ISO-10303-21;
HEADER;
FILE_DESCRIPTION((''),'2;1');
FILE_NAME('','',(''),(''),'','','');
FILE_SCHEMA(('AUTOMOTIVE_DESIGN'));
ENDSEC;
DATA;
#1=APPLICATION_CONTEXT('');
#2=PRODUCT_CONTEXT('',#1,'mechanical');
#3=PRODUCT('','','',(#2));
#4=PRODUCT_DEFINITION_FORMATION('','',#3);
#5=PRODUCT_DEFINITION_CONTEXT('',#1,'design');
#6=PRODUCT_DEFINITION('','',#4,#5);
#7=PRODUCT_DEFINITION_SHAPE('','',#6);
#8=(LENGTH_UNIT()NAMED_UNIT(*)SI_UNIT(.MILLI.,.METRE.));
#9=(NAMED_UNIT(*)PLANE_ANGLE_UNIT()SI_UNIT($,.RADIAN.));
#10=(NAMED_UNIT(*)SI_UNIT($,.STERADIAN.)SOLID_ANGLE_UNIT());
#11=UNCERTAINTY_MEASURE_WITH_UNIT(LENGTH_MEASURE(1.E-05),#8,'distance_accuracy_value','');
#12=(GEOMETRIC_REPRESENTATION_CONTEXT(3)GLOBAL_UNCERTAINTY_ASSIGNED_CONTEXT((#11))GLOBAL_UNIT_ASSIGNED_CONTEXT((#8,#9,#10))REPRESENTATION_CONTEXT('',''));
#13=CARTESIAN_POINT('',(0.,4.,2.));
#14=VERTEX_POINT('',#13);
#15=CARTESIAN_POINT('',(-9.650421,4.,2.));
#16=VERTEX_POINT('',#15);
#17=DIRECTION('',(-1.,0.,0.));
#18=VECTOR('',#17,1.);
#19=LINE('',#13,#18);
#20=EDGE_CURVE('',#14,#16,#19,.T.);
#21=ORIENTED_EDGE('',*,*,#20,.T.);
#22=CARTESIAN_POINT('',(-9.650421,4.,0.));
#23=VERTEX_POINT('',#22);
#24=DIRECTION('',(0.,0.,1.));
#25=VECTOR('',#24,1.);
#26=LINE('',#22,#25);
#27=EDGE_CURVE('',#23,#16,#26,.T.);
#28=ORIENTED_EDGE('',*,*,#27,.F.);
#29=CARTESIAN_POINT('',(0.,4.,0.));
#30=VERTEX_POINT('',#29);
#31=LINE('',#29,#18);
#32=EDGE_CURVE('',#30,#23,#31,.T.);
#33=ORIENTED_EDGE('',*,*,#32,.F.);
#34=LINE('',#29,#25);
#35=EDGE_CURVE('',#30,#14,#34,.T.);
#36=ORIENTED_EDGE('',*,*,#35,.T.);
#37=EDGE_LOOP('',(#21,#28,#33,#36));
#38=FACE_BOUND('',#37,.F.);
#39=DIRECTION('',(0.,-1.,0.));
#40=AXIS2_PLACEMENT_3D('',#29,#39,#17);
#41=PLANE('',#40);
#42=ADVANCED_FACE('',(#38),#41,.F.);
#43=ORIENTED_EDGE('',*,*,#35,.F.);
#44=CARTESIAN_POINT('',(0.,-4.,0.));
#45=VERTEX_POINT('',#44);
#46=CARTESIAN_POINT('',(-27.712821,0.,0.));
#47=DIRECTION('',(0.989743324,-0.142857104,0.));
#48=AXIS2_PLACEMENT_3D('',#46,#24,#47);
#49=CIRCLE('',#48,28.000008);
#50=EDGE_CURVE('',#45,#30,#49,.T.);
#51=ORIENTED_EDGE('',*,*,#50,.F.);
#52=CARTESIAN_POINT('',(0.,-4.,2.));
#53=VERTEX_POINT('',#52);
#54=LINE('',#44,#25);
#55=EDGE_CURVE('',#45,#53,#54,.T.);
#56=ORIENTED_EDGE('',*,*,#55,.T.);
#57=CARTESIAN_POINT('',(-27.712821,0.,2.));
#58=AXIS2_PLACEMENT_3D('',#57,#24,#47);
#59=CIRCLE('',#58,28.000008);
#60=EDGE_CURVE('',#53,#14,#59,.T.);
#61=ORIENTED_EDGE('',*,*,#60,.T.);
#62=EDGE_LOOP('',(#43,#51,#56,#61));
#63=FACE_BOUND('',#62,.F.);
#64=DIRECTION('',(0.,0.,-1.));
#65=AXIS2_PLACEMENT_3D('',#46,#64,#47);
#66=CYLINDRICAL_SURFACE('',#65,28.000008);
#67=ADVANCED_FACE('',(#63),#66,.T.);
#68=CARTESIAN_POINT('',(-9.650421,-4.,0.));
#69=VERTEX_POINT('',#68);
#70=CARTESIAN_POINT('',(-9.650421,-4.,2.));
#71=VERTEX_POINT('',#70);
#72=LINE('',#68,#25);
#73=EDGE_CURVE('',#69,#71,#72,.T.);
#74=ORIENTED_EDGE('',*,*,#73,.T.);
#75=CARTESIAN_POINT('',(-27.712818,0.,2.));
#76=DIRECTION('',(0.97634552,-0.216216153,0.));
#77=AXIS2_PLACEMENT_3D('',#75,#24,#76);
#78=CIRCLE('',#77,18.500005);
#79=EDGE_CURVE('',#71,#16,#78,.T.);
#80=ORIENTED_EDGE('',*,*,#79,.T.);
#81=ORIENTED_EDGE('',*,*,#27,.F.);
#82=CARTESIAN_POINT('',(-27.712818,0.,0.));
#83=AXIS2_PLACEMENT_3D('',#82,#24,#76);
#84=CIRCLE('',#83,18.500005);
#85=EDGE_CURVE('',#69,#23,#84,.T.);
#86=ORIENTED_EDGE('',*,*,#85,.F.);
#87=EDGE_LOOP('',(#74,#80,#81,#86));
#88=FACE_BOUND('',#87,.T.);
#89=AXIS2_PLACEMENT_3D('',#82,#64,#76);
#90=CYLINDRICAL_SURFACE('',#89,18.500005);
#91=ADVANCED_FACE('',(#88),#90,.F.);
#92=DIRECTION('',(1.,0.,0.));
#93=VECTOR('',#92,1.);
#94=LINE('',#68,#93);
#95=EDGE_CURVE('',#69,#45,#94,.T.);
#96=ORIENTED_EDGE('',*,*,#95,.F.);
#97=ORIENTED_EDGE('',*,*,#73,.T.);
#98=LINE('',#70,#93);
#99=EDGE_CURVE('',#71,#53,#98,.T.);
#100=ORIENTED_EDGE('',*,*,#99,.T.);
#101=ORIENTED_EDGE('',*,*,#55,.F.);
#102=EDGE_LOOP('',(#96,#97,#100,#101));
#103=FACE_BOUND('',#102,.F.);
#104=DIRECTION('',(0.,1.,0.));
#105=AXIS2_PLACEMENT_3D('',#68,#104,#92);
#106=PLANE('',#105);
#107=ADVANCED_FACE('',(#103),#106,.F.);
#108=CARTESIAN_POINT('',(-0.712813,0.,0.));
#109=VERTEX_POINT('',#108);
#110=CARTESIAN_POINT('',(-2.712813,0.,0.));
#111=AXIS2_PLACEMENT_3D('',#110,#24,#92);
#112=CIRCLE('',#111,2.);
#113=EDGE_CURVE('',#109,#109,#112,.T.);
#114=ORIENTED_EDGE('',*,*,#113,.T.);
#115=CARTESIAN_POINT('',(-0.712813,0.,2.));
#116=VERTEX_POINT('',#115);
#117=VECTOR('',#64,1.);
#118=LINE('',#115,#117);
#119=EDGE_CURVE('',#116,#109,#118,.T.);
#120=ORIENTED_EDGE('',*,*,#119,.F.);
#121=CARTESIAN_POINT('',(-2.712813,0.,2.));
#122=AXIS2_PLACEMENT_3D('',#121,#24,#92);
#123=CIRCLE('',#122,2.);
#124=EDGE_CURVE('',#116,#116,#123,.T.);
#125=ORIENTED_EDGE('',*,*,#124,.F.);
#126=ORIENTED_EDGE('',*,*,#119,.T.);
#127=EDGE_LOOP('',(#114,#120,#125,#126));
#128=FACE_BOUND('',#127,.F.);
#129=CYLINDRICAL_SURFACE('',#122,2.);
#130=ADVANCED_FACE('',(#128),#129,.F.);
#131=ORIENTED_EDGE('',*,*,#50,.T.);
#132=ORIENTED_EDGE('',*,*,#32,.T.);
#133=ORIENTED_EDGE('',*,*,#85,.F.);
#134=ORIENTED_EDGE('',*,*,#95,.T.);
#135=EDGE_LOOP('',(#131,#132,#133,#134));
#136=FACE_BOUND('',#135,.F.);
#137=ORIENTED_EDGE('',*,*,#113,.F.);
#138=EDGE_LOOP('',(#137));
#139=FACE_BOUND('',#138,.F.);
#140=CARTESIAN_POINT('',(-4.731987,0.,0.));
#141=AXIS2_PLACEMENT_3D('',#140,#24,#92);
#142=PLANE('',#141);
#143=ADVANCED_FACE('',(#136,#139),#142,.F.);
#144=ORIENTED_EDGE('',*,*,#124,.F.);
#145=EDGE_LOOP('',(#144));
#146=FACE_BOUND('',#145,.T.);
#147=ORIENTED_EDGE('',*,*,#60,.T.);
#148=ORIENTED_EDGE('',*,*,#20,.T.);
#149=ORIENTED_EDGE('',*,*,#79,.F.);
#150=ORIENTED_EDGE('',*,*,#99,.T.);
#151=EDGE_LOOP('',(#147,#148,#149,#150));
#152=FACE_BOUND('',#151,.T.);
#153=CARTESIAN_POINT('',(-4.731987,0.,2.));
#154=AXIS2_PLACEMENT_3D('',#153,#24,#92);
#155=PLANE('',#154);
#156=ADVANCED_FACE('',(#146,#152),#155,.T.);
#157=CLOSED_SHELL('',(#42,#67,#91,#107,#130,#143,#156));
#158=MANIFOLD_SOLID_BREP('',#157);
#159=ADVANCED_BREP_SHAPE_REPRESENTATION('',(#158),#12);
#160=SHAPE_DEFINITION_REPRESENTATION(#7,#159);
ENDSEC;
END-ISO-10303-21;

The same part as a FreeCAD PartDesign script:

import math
import FreeCAD as App
import Part
import Sketcher

doc = App.newDocument("Part")
params = doc.addObject("Spreadsheet::Sheet", "Params")
for row, (alias, value) in enumerate([
    ("pad1_length", "2 mm"),
    ("sketch2_diameter", "4 mm"),
], start=1):
    params.set(f"A{row}", alias)
    params.set(f"B{row}", "=" + value)
    params.setAlias(f"B{row}", alias)

body = doc.addObject("PartDesign::Body", "Body")

sketch1 = body.newObject("Sketcher::SketchObject", "Sketch")
sketch1.AttachmentSupport = (doc.getObject("XY_Plane"), [""])
sketch1.MapMode = "FlatFace"
sketch1.addGeometry([
    Part.LineSegment(App.Vector(0, 4, 0), App.Vector(-10, 4, 0)),
    Part.ArcOfCircle(Part.Circle(App.Vector(-28, 0, 0), App.Vector(0, 0, 1), 19), math.radians(-12), math.radians(12)),
    Part.LineSegment(App.Vector(-10, -4, 0), App.Vector(0, -4, 0)),
    Part.ArcOfCircle(Part.Circle(App.Vector(-28, 0, 0), App.Vector(0, 0, 1), 28), math.radians(-8.21), math.radians(8.21)),
], False)
sketch1.addConstraint([
    Sketcher.Constraint("Coincident", 0, 2, 1, 2),
    Sketcher.Constraint("Coincident", 1, 1, 2, 1),
    Sketcher.Constraint("Coincident", 2, 2, 3, 1),
    Sketcher.Constraint("Coincident", 3, 2, 0, 1),
    Sketcher.Constraint("Horizontal", 0),
    Sketcher.Constraint("Horizontal", 2),
    Sketcher.Constraint("Coincident", 3, 3, 1, 3),
    Sketcher.Constraint("Symmetric", 2, 2, 3, 2, -1, 1),
    Sketcher.Constraint("PointOnObject", 1, 3, -1),
    Sketcher.Constraint("DistanceY", -1, 1, 0, 2, 4.0),
    Sketcher.Constraint("Radius", 1, 18.500005),
    Sketcher.Constraint("Radius", 3, 28.000008),
])
pad1 = body.newObject("PartDesign::Pad", "Pad")
pad1.Profile = sketch1
pad1.setExpression("Length", "Params.pad1_length")

sketch2 = body.newObject("Sketcher::SketchObject", "Sketch001")
sketch2.AttachmentSupport = (doc.getObject("XY_Plane"), [""])
sketch2.MapMode = "FlatFace"
sketch2.AttachmentOffset = App.Placement(App.Vector(0, 0, 2), App.Rotation())
sketch2.addGeometry(Part.Circle(App.Vector(-2.7, 0, 0), App.Vector(0, 0, 1), 2), False)
sketch2.addConstraint([
    Sketcher.Constraint("PointOnObject", 0, 3, -1),
    Sketcher.Constraint("Diameter", 0, 4.0),
    Sketcher.Constraint("DistanceX", 0, 3, -1, 1, 2.712813),
])
sketch2.setExpression("Constraints[1]", "Params.sketch2_diameter")
pocket1 = body.newObject("PartDesign::Pocket", "Pocket")
pocket1.Profile = sketch2
pocket1.Type = "ThroughAll"

doc.recompute()
